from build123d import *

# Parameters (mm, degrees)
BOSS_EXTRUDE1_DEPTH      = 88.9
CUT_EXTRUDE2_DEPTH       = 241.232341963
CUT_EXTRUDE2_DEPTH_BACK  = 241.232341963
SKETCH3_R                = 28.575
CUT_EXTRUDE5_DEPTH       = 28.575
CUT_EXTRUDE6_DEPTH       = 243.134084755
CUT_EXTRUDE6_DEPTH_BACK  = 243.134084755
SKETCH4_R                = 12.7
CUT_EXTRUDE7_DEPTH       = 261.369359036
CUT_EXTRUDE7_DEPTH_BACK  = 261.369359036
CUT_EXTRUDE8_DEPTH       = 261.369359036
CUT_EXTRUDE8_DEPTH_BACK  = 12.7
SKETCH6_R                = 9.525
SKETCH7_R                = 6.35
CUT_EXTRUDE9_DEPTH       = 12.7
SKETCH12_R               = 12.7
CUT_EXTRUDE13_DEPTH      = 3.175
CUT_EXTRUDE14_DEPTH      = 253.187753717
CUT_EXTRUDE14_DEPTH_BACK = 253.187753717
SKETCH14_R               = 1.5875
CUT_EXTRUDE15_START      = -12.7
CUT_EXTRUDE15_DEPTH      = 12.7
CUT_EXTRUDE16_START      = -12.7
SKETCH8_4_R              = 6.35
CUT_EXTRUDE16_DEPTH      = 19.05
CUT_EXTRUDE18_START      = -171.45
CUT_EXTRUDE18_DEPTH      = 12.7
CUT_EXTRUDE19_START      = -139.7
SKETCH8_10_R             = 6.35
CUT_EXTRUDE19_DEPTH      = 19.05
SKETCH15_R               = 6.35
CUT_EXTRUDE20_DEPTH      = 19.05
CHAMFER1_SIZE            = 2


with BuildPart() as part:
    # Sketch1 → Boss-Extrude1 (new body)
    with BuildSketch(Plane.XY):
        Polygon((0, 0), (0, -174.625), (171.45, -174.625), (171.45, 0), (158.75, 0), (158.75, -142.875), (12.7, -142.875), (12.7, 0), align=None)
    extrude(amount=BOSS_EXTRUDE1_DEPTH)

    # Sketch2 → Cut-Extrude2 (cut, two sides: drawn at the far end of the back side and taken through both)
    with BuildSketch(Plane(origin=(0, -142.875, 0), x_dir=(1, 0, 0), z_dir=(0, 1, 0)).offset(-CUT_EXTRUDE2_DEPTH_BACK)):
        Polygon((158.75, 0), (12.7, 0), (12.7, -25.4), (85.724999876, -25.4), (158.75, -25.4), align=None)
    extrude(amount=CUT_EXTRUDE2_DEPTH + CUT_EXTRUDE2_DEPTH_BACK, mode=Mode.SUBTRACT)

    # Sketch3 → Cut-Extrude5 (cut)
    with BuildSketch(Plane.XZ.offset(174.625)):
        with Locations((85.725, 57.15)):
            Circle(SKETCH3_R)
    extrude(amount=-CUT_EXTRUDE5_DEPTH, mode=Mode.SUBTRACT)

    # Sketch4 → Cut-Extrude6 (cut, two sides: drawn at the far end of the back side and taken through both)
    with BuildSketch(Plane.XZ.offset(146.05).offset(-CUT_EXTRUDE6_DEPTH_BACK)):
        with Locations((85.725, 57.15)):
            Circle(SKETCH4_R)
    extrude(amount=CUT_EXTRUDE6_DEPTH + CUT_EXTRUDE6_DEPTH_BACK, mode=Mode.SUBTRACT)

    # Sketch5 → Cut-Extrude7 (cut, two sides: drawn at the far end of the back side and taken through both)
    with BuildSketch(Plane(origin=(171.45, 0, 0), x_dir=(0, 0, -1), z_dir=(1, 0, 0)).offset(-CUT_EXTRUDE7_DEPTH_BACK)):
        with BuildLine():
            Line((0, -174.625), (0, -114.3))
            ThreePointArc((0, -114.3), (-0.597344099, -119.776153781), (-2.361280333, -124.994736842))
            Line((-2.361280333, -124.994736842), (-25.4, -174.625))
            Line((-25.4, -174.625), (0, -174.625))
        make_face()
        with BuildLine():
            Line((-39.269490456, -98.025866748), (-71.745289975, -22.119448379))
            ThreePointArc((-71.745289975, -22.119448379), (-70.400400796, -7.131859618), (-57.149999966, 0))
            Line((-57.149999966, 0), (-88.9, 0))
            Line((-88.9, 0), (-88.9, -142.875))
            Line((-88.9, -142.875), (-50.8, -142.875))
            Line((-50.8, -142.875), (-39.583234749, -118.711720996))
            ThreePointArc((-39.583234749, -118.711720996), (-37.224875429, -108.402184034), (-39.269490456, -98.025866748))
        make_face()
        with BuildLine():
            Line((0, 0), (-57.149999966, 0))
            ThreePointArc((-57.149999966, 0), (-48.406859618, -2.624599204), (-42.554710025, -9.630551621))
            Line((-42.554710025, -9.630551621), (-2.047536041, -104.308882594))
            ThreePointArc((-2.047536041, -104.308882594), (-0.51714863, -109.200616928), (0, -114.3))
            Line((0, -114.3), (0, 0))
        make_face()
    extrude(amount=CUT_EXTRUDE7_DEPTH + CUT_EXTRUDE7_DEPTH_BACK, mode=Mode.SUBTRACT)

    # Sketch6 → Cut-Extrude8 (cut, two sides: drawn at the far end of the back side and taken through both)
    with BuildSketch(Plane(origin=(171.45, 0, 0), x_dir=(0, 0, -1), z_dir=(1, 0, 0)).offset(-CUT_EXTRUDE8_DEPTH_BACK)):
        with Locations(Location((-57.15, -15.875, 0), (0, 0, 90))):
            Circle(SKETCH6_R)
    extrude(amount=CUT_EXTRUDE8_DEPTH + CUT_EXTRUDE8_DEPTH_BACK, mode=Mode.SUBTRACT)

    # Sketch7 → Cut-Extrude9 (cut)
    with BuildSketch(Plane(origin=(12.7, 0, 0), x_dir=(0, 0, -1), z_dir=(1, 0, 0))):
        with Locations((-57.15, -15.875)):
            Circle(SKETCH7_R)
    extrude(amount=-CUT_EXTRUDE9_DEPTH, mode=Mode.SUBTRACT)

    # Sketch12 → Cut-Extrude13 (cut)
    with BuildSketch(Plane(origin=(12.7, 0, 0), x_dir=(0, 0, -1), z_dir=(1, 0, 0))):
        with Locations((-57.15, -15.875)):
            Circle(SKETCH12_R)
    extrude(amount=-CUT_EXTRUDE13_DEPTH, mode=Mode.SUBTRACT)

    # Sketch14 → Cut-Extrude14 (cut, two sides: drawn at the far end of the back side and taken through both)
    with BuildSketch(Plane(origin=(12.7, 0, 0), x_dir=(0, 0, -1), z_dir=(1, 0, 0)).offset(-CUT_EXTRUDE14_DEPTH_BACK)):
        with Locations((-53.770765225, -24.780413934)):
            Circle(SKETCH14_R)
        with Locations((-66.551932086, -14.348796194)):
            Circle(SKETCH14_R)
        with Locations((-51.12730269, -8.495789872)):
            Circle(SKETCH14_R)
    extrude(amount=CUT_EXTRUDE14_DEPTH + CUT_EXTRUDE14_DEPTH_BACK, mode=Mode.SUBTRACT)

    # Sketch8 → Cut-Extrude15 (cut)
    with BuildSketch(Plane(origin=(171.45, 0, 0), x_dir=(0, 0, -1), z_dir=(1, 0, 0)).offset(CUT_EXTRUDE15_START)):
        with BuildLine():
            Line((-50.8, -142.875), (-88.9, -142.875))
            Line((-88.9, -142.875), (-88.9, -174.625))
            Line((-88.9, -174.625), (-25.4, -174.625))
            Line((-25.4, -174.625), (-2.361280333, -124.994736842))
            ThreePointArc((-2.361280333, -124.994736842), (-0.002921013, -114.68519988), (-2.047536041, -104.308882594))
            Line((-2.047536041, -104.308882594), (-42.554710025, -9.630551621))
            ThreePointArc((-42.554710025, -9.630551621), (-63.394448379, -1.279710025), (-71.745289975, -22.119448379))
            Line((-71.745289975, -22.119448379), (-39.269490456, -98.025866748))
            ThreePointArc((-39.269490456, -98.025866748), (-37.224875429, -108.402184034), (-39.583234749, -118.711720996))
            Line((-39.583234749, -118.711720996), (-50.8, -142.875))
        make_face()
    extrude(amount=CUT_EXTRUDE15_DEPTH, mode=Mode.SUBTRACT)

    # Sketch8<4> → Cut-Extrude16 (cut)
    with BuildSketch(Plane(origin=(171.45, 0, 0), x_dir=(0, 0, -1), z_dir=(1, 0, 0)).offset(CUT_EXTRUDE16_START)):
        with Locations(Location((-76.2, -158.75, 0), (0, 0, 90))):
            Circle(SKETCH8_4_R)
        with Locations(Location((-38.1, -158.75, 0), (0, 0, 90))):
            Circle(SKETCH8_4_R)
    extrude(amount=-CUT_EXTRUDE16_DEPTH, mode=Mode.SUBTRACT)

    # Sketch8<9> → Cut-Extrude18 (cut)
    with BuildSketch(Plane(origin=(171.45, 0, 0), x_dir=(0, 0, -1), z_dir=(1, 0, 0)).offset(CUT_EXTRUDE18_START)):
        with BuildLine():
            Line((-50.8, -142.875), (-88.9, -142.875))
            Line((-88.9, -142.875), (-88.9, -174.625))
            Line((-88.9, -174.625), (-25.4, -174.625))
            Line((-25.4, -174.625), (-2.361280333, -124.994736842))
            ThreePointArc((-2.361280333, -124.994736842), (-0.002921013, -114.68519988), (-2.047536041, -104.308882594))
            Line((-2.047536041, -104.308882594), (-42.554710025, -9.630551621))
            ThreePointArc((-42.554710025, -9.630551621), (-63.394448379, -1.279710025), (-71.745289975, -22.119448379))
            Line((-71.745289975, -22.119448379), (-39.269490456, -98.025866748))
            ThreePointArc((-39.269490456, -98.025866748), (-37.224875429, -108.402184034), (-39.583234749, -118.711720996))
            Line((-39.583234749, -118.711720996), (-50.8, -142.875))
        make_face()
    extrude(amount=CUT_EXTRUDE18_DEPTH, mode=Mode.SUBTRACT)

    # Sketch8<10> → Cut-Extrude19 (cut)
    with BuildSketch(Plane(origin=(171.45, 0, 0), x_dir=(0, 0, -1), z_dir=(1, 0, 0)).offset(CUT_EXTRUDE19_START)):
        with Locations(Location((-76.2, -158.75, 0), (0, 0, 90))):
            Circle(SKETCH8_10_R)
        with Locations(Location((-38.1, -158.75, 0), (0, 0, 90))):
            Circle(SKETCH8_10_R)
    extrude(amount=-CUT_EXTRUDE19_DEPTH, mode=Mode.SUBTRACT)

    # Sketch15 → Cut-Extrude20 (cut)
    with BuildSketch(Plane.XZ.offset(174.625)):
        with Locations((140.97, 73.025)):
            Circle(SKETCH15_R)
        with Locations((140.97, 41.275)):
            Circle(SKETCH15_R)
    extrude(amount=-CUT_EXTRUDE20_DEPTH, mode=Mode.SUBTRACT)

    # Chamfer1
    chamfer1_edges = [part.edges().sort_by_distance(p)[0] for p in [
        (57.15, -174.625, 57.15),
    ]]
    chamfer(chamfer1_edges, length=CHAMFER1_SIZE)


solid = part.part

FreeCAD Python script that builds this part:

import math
import FreeCAD as App
import Part
import Sketcher
from FreeCAD import Vector
Q = App.Units.Quantity


def edges_at(feature, points):
    """Names of the edges that pass closest to the given points."""
    edges = feature.Shape.Edges
    near = lambda p: min(range(len(edges)), key=lambda i: edges[i].distToShape(Part.Vertex(*p))[0])
    return sorted({f"Edge{near(p) + 1}" for p in points})

doc = App.newDocument("Part")
body = doc.addObject("PartDesign::Body", "Body")

# Sketch on XY plane
sketch1 = body.newObject("Sketcher::SketchObject", "Sketch")
sketch1.AttachmentSupport = (doc.getObject("XY_Plane"), [""])
sketch1.MapMode = "FlatFace"
sketch1.addGeometry([
    Part.LineSegment(Vector(0, 0, 0), Vector(0, -174.625, 0)),  # 0
    Part.LineSegment(Vector(0, -174.625, 0), Vector(171.45, -174.625, 0)),  # 1
    Part.LineSegment(Vector(171.45, -174.625, 0), Vector(171.45, 0, 0)),  # 2
    Part.LineSegment(Vector(171.45, 0, 0), Vector(158.75, 0, 0)),  # 3
    Part.LineSegment(Vector(158.75, 0, 0), Vector(158.75, -142.875, 0)),  # 4
    Part.LineSegment(Vector(158.75, -142.875, 0), Vector(12.7, -142.875, 0)),  # 5
    Part.LineSegment(Vector(12.7, -142.875, 0), Vector(12.7, 0, 0)),  # 6
    Part.LineSegment(Vector(12.7, 0, 0), Vector(0, 0, 0)),  # 7
], False)
sketch1.addConstraint([
    Sketcher.Constraint("Coincident", 0, 2, 1, 1),
    Sketcher.Constraint("Coincident", 1, 2, 2, 1),
    Sketcher.Constraint("Coincident", 2, 2, 3, 1),
    Sketcher.Constraint("Coincident", 3, 2, 4, 1),
    Sketcher.Constraint("Coincident", 4, 2, 5, 1),
    Sketcher.Constraint("Coincident", 5, 2, 6, 1),
    Sketcher.Constraint("Coincident", 6, 2, 7, 1),
    Sketcher.Constraint("Coincident", 7, 2, 0, 1),
    Sketcher.Constraint("Vertical", 0),
    Sketcher.Constraint("Horizontal", 1),
    Sketcher.Constraint("Vertical", 2),
    Sketcher.Constraint("Horizontal", 3),
    Sketcher.Constraint("Vertical", 4),
    Sketcher.Constraint("Horizontal", 5),
    Sketcher.Constraint("Vertical", 6),
    Sketcher.Constraint("Horizontal", 7),
    Sketcher.Constraint("Coincident", 7, 2, -1, 1),
    Sketcher.Constraint("PointOnObject", 2, 2, -1),
    Sketcher.Constraint("Equal", 3, 7),
    Sketcher.Constraint("DistanceX", 3, 2, 3, 1, Q("0.5 in")),
    Sketcher.Constraint("DistanceX", 1, 1, 1, 2, Q("6.75 in")),
    Sketcher.Constraint("DistanceY", 0, 2, 0, 1, Q("6.875 in")),
    Sketcher.Constraint("DistanceY", 4, 2, 4, 1, Q("5.625 in")),
])
pad1 = body.newObject("PartDesign::Pad", "Pad")
pad1.Profile = sketch1
pad1.Length = Q("3.5 in")

# Sketch on XZ plane
sketch2 = body.newObject("Sketcher::SketchObject", "Sketch001")
sketch2.AttachmentSupport = (doc.getObject("XZ_Plane"), [""])
sketch2.MapMode = "FlatFace"
sketch2.AttachmentOffset = App.Placement(Vector(0, 0, 5.625 * 25.4), App.Rotation())
sketch2.addGeometry([
    Part.LineSegment(Vector(158.75, 0, 0), Vector(12.7, 0, 0)),
    Part.LineSegment(Vector(12.7, 0, 0), Vector(12.7, 25.4, 0)),
    Part.LineSegment(Vector(12.7, 25.4, 0), Vector(158.75, 25.4, 0)),
    Part.LineSegment(Vector(158.75, 25.4, 0), Vector(158.75, 0, 0)),
], False)
sketch2.addConstraint([
    Sketcher.Constraint("Coincident", 0, 2, 1, 1),
    Sketcher.Constraint("Coincident", 1, 2, 2, 1),
    Sketcher.Constraint("Coincident", 2, 2, 3, 1),
    Sketcher.Constraint("Coincident", 3, 2, 0, 1),
    Sketcher.Constraint("Horizontal", 0),
    Sketcher.Constraint("Vertical", 1),
    Sketcher.Constraint("Horizontal", 2),
    Sketcher.Constraint("Vertical", 3),
    Sketcher.Constraint("PointOnObject", 0, 2, -1),
    Sketcher.Constraint("DistanceY", 1, 1, 1, 2, Q("1 in")),
    Sketcher.Constraint("DistanceX", 0, 2, 0, 1, Q("5.75 in")),
    Sketcher.Constraint("DistanceX", -1, 1, 0, 2, Q("0.5 in")),
])
pocket1 = body.newObject("PartDesign::Pocket", "Pocket")
pocket1.Profile = sketch2
pocket1.Type = "ThroughAll"
pocket1.Midplane = True

# Sketch on XZ plane
sketch3 = body.newObject("Sketcher::SketchObject", "Sketch002")
sketch3.AttachmentSupport = (doc.getObject("XZ_Plane"), [""])
sketch3.MapMode = "FlatFace"
sketch3.AttachmentOffset = App.Placement(Vector(0, 0, 6.875 * 25.4), App.Rotation())
sketch3.addGeometry(Part.Circle(Vector(85.725, 57.15, 0), Vector(0, 0, 1), 28.575), False)
sketch3.addConstraint([
    Sketcher.Constraint("Diameter", 0, Q("2.25 in")),
    Sketcher.Constraint("DistanceY", -1, 1, 0, 3, Q("2.25 in")),
    Sketcher.Constraint("DistanceX", -1, 1, 0, 3, Q("3.375 in")),
])
pocket2 = body.newObject("PartDesign::Pocket", "Pocket001")
pocket2.Profile = sketch3
pocket2.Length = Q("1.125 in")

# Sketch on XZ plane
sketch4 = body.newObject("Sketcher::SketchObject", "Sketch003")
sketch4.AttachmentSupport = (doc.getObject("XZ_Plane"), [""])
sketch4.MapMode = "FlatFace"
sketch4.AttachmentOffset = App.Placement(Vector(0, 0, 5.75 * 25.4), App.Rotation())
sketch4.addGeometry(Part.Circle(Vector(85.725, 57.15, 0), Vector(0, 0, 1), 12.7), False)
sketch4.addConstraint([
    Sketcher.Constraint("Diameter", 0, Q("1 in")),
    Sketcher.Constraint("DistanceY", -1, 1, 0, 3, Q("2.25 in")),
    Sketcher.Constraint("DistanceX", -1, 1, 0, 3, Q("3.375 in")),
])
pocket3 = body.newObject("PartDesign::Pocket", "Pocket002")
pocket3.Profile = sketch4
pocket3.Type = "ThroughAll"
pocket3.Midplane = True

# Sketch on YZ plane
sketch5 = body.newObject("Sketcher::SketchObject", "Sketch004")
sketch5.AttachmentSupport = (doc.getObject("YZ_Plane"), [""])
sketch5.MapMode = "FlatFace"
sketch5.AttachmentOffset = App.Placement(Vector(0, 0, 6.75 * 25.4), App.Rotation())
sketch5.addGeometry([
    Part.LineSegment(Vector(-174.625, 0, 0), Vector(-114.3, 0, 0)),  # 0
    Part.ArcOfCircle(Part.Circle(Vector(-114.3, 25.4, 0), Vector(0, 0, 1), 25.4), math.radians(-114.901062), math.radians(-90)),  # 1
    Part.LineSegment(Vector(-124.994737, 2.36128, 0), Vector(-174.625, 25.4, 0)),  # 2
    Part.LineSegment(Vector(-174.625, 25.4, 0), Vector(-174.625, 0, 0)),  # 3
    Part.LineSegment(Vector(-98.025867, 39.26949, 0), Vector(-22.119448, 71.74529, 0)),  # 4
    Part.ArcOfCircle(Part.Circle(Vector(-15.875, 57.15, 0), Vector(0, 0, 1), 15.875), math.radians(0), math.radians(113.163175)),  # 5
    Part.LineSegment(Vector(0, 57.15, 0), Vector(0, 88.9, 0)),  # 6
    Part.LineSegment(Vector(0, 88.9, 0), Vector(-142.875, 88.9, 0)),  # 7
    Part.LineSegment(Vector(-142.875, 88.9, 0), Vector(-142.875, 50.8, 0)),  # 8
    Part.LineSegment(Vector(-142.875, 50.8, 0), Vector(-118.711721, 39.583235, 0)),  # 9
    Part.ArcOfCircle(Part.Circle(Vector(-108.016984, 62.621954, 0), Vector(0, 0, 1), 25.4), math.radians(-114.901062), math.radians(-66.836825)),  # 10
    Part.LineSegment(Vector(0, 0, 0), Vector(0, 57.15, 0)),  # 11
    Part.ArcOfCircle(Part.Circle(Vector(-15.875, 57.15, 0), Vector(0, 0, 1), 15.875), math.radians(-66.836825), math.radians(0)),  # 12
    Part.LineSegment(Vector(-9.630552, 42.55471, 0), Vector(-104.308883, 2.047536, 0)),  # 13
    Part.ArcOfCircle(Part.Circle(Vector(-114.3, 25.4, 0), Vector(0, 0, 1), 25.4), math.radians(-90), math.radians(-66.836825)),  # 14
    Part.LineSegment(Vector(-114.3, 0, 0), Vector(0, 0, 0)),  # 15
], False)
sketch5.addConstraint([
    Sketcher.Constraint("Tangent", 0, 2, 1, 2),
    Sketcher.Constraint("Tangent", 1, 1, 2, 1),
    Sketcher.Constraint("Coincident", 2, 2, 3, 1),
    Sketcher.Constraint("Coincident", 3, 2, 0, 1),
    Sketcher.Constraint("Tangent", 4, 2, 5, 2),
    Sketcher.Constraint("Tangent", 5, 1, 6, 1),
    Sketcher.Constraint("Coincident", 6, 2, 7, 1),
    Sketcher.Constraint("Coincident", 7, 2, 8, 1),
    Sketcher.Constraint("Coincident", 8, 2, 9, 1),
    Sketcher.Constraint("Tangent", 9, 2, 10, 1),
    Sketcher.Constraint("Tangent", 10, 2, 4, 1),
    Sketcher.Constraint("Tangent", 11, 2, 12, 2),
    Sketcher.Constraint("Tangent", 12, 1, 13, 1),
    Sketcher.Constraint("Tangent", 13, 2, 14, 2),
    Sketcher.Constraint("Tangent", 14, 1, 15, 1),
    Sketcher.Constraint("Coincident", 15, 2, 11, 1),
    Sketcher.Constraint("Horizontal", 0),
    Sketcher.Constraint("Vertical", 3),
    Sketcher.Constraint("Vertical", 6),
    Sketcher.Constraint("Horizontal", 7),
    Sketcher.Constraint("Vertical", 8),
    Sketcher.Constraint("Vertical", 11),
    Sketcher.Constraint("Horizontal", 15),
    Sketcher.Constraint("Coincident", 15, 2, -1, 1),
    Sketcher.Constraint("Coincident", 12, 3, 5, 3),
    Sketcher.Constraint("Coincident", 14, 3, 1, 3),
    Sketcher.Constraint("Equal", 1, 10),
    Sketcher.Constraint("Equal", 5, 12),
    Sketcher.Constraint("Equal", 10, 14),
    Sketcher.Constraint("Parallel", 2, 9),
    Sketcher.Constraint("Parallel", 4, 13),
    Sketcher.Constraint("Horizontal", 14, 3, 2, 2),
    Sketcher.Constraint("Radius", 1, Q("1 in")),
    Sketcher.Constraint("DistanceX", 15, 1, 15, 2, Q("4.5 in")),
    Sketcher.Constraint("DistanceY", 8, 2, 8, 1, Q("1.5 in")),
    Sketcher.Constraint("DistanceY", -1, 1, 8, 2, Q("2 in")),
    Sketcher.Constraint("Radius", 5, Q("0.625 in")),
    Sketcher.Constraint("DistanceY", 6, 1, 6, 2, Q("1.25 in")),
    Sketcher.Constraint("DistanceX", 0, 1, 0, 2, Q("2.375 in")),
    Sketcher.Constraint("DistanceX", 7, 2, 7, 1, Q("5.625 in")),
])
pocket4 = body.newObject("PartDesign::Pocket", "Pocket003")
pocket4.Profile = sketch5
pocket4.Type = "ThroughAll"
pocket4.Midplane = True

# Sketch on YZ plane
sketch6 = body.newObject("Sketcher::SketchObject", "Sketch005")
sketch6.AttachmentSupport = (doc.getObject("YZ_Plane"), [""])
sketch6.MapMode = "FlatFace"
sketch6.AttachmentOffset = App.Placement(Vector(0, 0, 6.75 * 25.4), App.Rotation())
sketch6.addGeometry(Part.Circle(Vector(-15.875, 57.15, 0), Vector(0, 0, 1), 9.525), False)
sketch6.addConstraint([
    Sketcher.Constraint("Diameter", 0, Q("0.75 in")),
    Sketcher.Constraint("DistanceY", -1, 1, 0, 3, Q("2.25 in")),
    Sketcher.Constraint("DistanceX", 0, 3, -1, 1, Q("0.625 in")),
])
pocket5 = body.newObject("PartDesign::Pocket", "Pocket004")
pocket5.Profile = sketch6
pocket5.Type = "TwoLengths"
pocket5.Length = 261.369359
pocket5.Length2 = Q("0.5 in")
pocket5.Reversed = True

# Sketch on YZ plane
sketch7 = body.newObject("Sketcher::SketchObject", "Sketch006")
sketch7.AttachmentSupport = (doc.getObject("YZ_Plane"), [""])
sketch7.MapMode = "FlatFace"
sketch7.AttachmentOffset = App.Placement(Vector(0, 0, 0.5 * 25.4), App.Rotation())
sketch7.addGeometry(Part.Circle(Vector(-15.875, 57.15, 0), Vector(0, 0, 1), 6.35), False)
sketch7.addConstraint([
    Sketcher.Constraint("Diameter", 0, Q("0.5 in")),
    Sketcher.Constraint("DistanceY", -1, 1, 0, 3, Q("2.25 in")),
    Sketcher.Constraint("DistanceX", 0, 3, -1, 1, Q("0.625 in")),
])
pocket6 = body.newObject("PartDesign::Pocket", "Pocket005")
pocket6.Profile = sketch7
pocket6.Length = Q("0.5 in")

# Sketch on YZ plane
sketch8 = body.newObject("Sketcher::SketchObject", "Sketch007")
sketch8.AttachmentSupport = (doc.getObject("YZ_Plane"), [""])
sketch8.MapMode = "FlatFace"
sketch8.AttachmentOffset = App.Placement(Vector(0, 0, 0.5 * 25.4), App.Rotation())
sketch8.addGeometry(Part.Circle(Vector(-15.875, 57.15, 0), Vector(0, 0, 1), 12.7), False)
sketch8.addConstraint([
    Sketcher.Constraint("Diameter", 0, Q("1 in")),
    Sketcher.Constraint("DistanceY", -1, 1, 0, 3, Q("2.25 in")),
    Sketcher.Constraint("DistanceX", 0, 3, -1, 1, Q("0.625 in")),
])
pocket7 = body.newObject("PartDesign::Pocket", "Pocket006")
pocket7.Profile = sketch8
pocket7.Length = Q("0.125 in")

# Sketch on YZ plane
sketch9 = body.newObject("Sketcher::SketchObject", "Sketch008")
sketch9.AttachmentSupport = (doc.getObject("YZ_Plane"), [""])
sketch9.MapMode = "FlatFace"
sketch9.AttachmentOffset = App.Placement(Vector(0, 0, 0.5 * 25.4), App.Rotation())
sketch9.addGeometry([
    Part.Circle(Vector(-24.780414, 53.770765, 0), Vector(0, 0, 1), 1.5875),
    Part.Circle(Vector(-14.348796, 66.551932, 0), Vector(0, 0, 1), 1.5875),
    Part.Circle(Vector(-8.49579, 51.127303, 0), Vector(0, 0, 1), 1.5875),
], False)
sketch9.addConstraint([
    Sketcher.Constraint("Equal", 0, 1),
    Sketcher.Constraint("Equal", 1, 2),
    Sketcher.Constraint("Diameter", 0, Q("0.125 in")),
    Sketcher.Constraint("DistanceX", 2, 3, -1, 1, 8.49579),
    Sketcher.Constraint("DistanceY", 2, 3, 1, 3, 15.424629),
    Sketcher.Constraint("DistanceX", 0, 3, -1, 1, 24.780414),
    Sketcher.Constraint("DistanceY", -1, 1, 0, 3, 53.770765),
    Sketcher.Constraint("DistanceX", 1, 3, -1, 1, 14.348796),
    Sketcher.Constraint("DistanceY", -1, 1, 1, 3, 66.551932),
])
pocket8 = body.newObject("PartDesign::Pocket", "Pocket007")
pocket8.Profile = sketch9
pocket8.Type = "ThroughAll"
pocket8.Midplane = True

# Sketch on YZ plane
sketch10 = body.newObject("Sketcher::SketchObject", "Sketch009")
sketch10.AttachmentSupport = (doc.getObject("YZ_Plane"), [""])
sketch10.MapMode = "FlatFace"
sketch10.AttachmentOffset = App.Placement(Vector(0, 0, 6.25 * 25.4), App.Rotation())
sketch10.addGeometry([
    Part.LineSegment(Vector(-142.875, 50.8, 0), Vector(-142.875, 88.9, 0)),  # 0
    Part.LineSegment(Vector(-142.875, 88.9, 0), Vector(-174.625, 88.9, 0)),  # 1
    Part.LineSegment(Vector(-174.625, 88.9, 0), Vector(-174.625, 25.4, 0)),  # 2
    Part.LineSegment(Vector(-174.625, 25.4, 0), Vector(-124.994737, 2.36128, 0)),  # 3
    Part.ArcOfCircle(Part.Circle(Vector(-114.3, 25.4, 0), Vector(0, 0, 1), 25.4), math.radians(-114.901062), math.radians(-66.836825)),  # 4
    Part.LineSegment(Vector(-104.308883, 2.047536, 0), Vector(-9.630552, 42.55471, 0)),  # 5
    Part.ArcOfCircle(Part.Circle(Vector(-15.875, 57.15, 0), Vector(0, 0, 1), 15.875), math.radians(-66.836825), math.radians(113.163175)),  # 6
    Part.LineSegment(Vector(-22.119448, 71.74529, 0), Vector(-98.025867, 39.26949, 0)),  # 7
    Part.ArcOfCircle(Part.Circle(Vector(-108.016984, 62.621954, 0), Vector(0, 0, 1), 25.4), math.radians(-114.901062), math.radians(-66.836825)),  # 8
    Part.LineSegment(Vector(-118.711721, 39.583235, 0), Vector(-142.875, 50.8, 0)),  # 9
], False)
sketch10.addConstraint([
    Sketcher.Constraint("Coincident", 0, 2, 1, 1),
    Sketcher.Constraint("Coincident", 1, 2, 2, 1),
    Sketcher.Constraint("Coincident", 2, 2, 3, 1),
    Sketcher.Constraint("Tangent", 3, 2, 4, 1),
    Sketcher.Constraint("Tangent", 4, 2, 5, 1),
    Sketcher.Constraint("Tangent", 5, 2, 6, 1),
    Sketcher.Constraint("Tangent", 6, 2, 7, 1),
    Sketcher.Constraint("Tangent", 7, 2, 8, 2),
    Sketcher.Constraint("Tangent", 8, 1, 9, 1),
    Sketcher.Constraint("Coincident", 9, 2, 0, 1),
    Sketcher.Constraint("Vertical", 0),
    Sketcher.Constraint("Horizontal", 1),
    Sketcher.Constraint("Vertical", 2),
    Sketcher.Constraint("Equal", 4, 8),
    Sketcher.Constraint("Parallel", 5, 7),
    Sketcher.Constraint("Parallel", 3, 9),
    Sketcher.Constraint("Horizontal", 4, 3, 2, 2),
    Sketcher.Constraint("Radius", 4, Q("1 in")),
    Sketcher.Constraint("DistanceY", 0, 1, 0, 2, Q("1.5 in")),
    Sketcher.Constraint("DistanceY", 2, 2, 2, 1, Q("2.5 in")),
    Sketcher.Constraint("DistanceY", -1, 1, 4, 3, Q("1 in")),
    Sketcher.Constraint("Radius", 6, Q("0.625 in")),
    Sketcher.Constraint("DistanceX", 0, 2, 6, 3, Q("5 in")),
    Sketcher.Constraint("DistanceX", 1, 2, 1, 1, Q("1.25 in")),
    Sketcher.Constraint("DistanceX", 4, 3, -1, 1, Q("4.5 in")),
    Sketcher.Constraint("DistanceY", -1, 1, 6, 3, Q("2.25 in")),
    Sketcher.Constraint("DistanceX", 6, 3, -1, 1, Q("0.625 in")),
])
pocket9 = body.newObject("PartDesign::Pocket", "Pocket008")
pocket9.Profile = sketch10
pocket9.Length = Q("0.5 in")
pocket9.Reversed = True

# Sketch on YZ plane
sketch11 = body.newObject("Sketcher::SketchObject", "Sketch010")
sketch11.AttachmentSupport = (doc.getObject("YZ_Plane"), [""])
sketch11.MapMode = "FlatFace"
sketch11.AttachmentOffset = App.Placement(Vector(0, 0, 6.25 * 25.4), App.Rotation())
sketch11.addGeometry([
    Part.Circle(Vector(-158.75, 76.2, 0), Vector(0, 0, 1), 6.35),
    Part.Circle(Vector(-158.75, 38.1, 0), Vector(0, 0, 1), 6.35),
], False)
sketch11.addConstraint([
    Sketcher.Constraint("Equal", 0, 1),
    Sketcher.Constraint("Vertical", 0, 3, 1, 3),
    Sketcher.Constraint("Diameter", 0, Q("0.5 in")),
    Sketcher.Constraint("DistanceY", -1, 1, 0, 3, Q("3 in")),
    Sketcher.Constraint("DistanceY", -1, 1, 1, 3, Q("1.5 in")),
    Sketcher.Constraint("DistanceX", 0, 3, -1, 1, Q("6.25 in")),
])
pocket10 = body.newObject("PartDesign::Pocket", "Pocket009")
pocket10.Profile = sketch11
pocket10.Length = Q("0.75 in")

# Sketch on YZ plane
sketch12 = body.newObject("Sketcher::SketchObject", "Sketch011")
sketch12.AttachmentSupport = (doc.getObject("YZ_Plane"), [""])
sketch12.MapMode = "FlatFace"
sketch12.addGeometry([
    Part.LineSegment(Vector(-142.875, 50.8, 0), Vector(-142.875, 88.9, 0)),  # 0
    Part.LineSegment(Vector(-142.875, 88.9, 0), Vector(-174.625, 88.9, 0)),  # 1
    Part.LineSegment(Vector(-174.625, 88.9, 0), Vector(-174.625, 25.4, 0)),  # 2
    Part.LineSegment(Vector(-174.625, 25.4, 0), Vector(-124.994737, 2.36128, 0)),  # 3
    Part.ArcOfCircle(Part.Circle(Vector(-114.3, 25.4, 0), Vector(0, 0, 1), 25.4), math.radians(-114.901062), math.radians(-66.836825)),  # 4
    Part.LineSegment(Vector(-104.308883, 2.047536, 0), Vector(-9.630552, 42.55471, 0)),  # 5
    Part.ArcOfCircle(Part.Circle(Vector(-15.875, 57.15, 0), Vector(0, 0, 1), 15.875), math.radians(-66.836825), math.radians(113.163175)),  # 6
    Part.LineSegment(Vector(-22.119448, 71.74529, 0), Vector(-98.025867, 39.26949, 0)),  # 7
    Part.ArcOfCircle(Part.Circle(Vector(-108.016984, 62.621954, 0), Vector(0, 0, 1), 25.4), math.radians(-114.901062), math.radians(-66.836825)),  # 8
    Part.LineSegment(Vector(-118.711721, 39.583235, 0), Vector(-142.875, 50.8, 0)),  # 9
], False)
sketch12.addConstraint([
    Sketcher.Constraint("Coincident", 0, 2, 1, 1),
    Sketcher.Constraint("Coincident", 1, 2, 2, 1),
    Sketcher.Constraint("Coincident", 2, 2, 3, 1),
    Sketcher.Constraint("Tangent", 3, 2, 4, 1),
    Sketcher.Constraint("Tangent", 4, 2, 5, 1),
    Sketcher.Constraint("Tangent", 5, 2, 6, 1),
    Sketcher.Constraint("Tangent", 6, 2, 7, 1),
    Sketcher.Constraint("Tangent", 7, 2, 8, 2),
    Sketcher.Constraint("Tangent", 8, 1, 9, 1),
    Sketcher.Constraint("Coincident", 9, 2, 0, 1),
    Sketcher.Constraint("Vertical", 0),
    Sketcher.Constraint("Horizontal", 1),
    Sketcher.Constraint("Vertical", 2),
    Sketcher.Constraint("Equal", 4, 8),
    Sketcher.Constraint("Parallel", 5, 7),
    Sketcher.Constraint("Parallel", 3, 9),
    Sketcher.Constraint("Horizontal", 4, 3, 2, 2),
    Sketcher.Constraint("Radius", 4, Q("1 in")),
    Sketcher.Constraint("DistanceY", 0, 1, 0, 2, Q("1.5 in")),
    Sketcher.Constraint("DistanceY", 2, 2, 2, 1, Q("2.5 in")),
    Sketcher.Constraint("DistanceY", -1, 1, 4, 3, Q("1 in")),
    Sketcher.Constraint("Radius", 6, Q("0.625 in")),
    Sketcher.Constraint("DistanceX", 0, 2, 6, 3, Q("5 in")),
    Sketcher.Constraint("DistanceX", 1, 2, 1, 1, Q("1.25 in")),
    Sketcher.Constraint("DistanceX", 4, 3, -1, 1, Q("4.5 in")),
    Sketcher.Constraint("DistanceY", -1, 1, 6, 3, Q("2.25 in")),
    Sketcher.Constraint("DistanceX", 6, 3, -1, 1, Q("0.625 in")),
])
pocket11 = body.newObject("PartDesign::Pocket", "Pocket010")
pocket11.Profile = sketch12
pocket11.Length = Q("0.5 in")
pocket11.Reversed = True

# Sketch on YZ plane
sketch13 = body.newObject("Sketcher::SketchObject", "Sketch012")
sketch13.AttachmentSupport = (doc.getObject("YZ_Plane"), [""])
sketch13.MapMode = "FlatFace"
sketch13.AttachmentOffset = App.Placement(Vector(0, 0, 1.25 * 25.4), App.Rotation())
sketch13.addGeometry([
    Part.Circle(Vector(-158.75, 76.2, 0), Vector(0, 0, 1), 6.35),
    Part.Circle(Vector(-158.75, 38.1, 0), Vector(0, 0, 1), 6.35),
], False)
sketch13.addConstraint([
    Sketcher.Constraint("Equal", 0, 1),
    Sketcher.Constraint("Vertical", 0, 3, 1, 3),
    Sketcher.Constraint("Diameter", 0, Q("0.5 in")),
    Sketcher.Constraint("DistanceY", -1, 1, 0, 3, Q("3 in")),
    Sketcher.Constraint("DistanceY", -1, 1, 1, 3, Q("1.5 in")),
    Sketcher.Constraint("DistanceX", 0, 3, -1, 1, Q("6.25 in")),
])
pocket12 = body.newObject("PartDesign::Pocket", "Pocket011")
pocket12.Profile = sketch13
pocket12.Length = Q("0.75 in")

# Sketch on XZ plane
sketch14 = body.newObject("Sketcher::SketchObject", "Sketch013")
sketch14.AttachmentSupport = (doc.getObject("XZ_Plane"), [""])
sketch14.MapMode = "FlatFace"
sketch14.AttachmentOffset = App.Placement(Vector(0, 0, 6.875 * 25.4), App.Rotation())
sketch14.addGeometry([
    Part.Circle(Vector(140.97, 73.025, 0), Vector(0, 0, 1), 6.35),
    Part.Circle(Vector(140.97, 41.275, 0), Vector(0, 0, 1), 6.35),
], False)
sketch14.addConstraint([
    Sketcher.Constraint("Equal", 0, 1),
    Sketcher.Constraint("Vertical", 0, 3, 1, 3),
    Sketcher.Constraint("Diameter", 0, Q("0.5 in")),
    Sketcher.Constraint("DistanceX", -1, 1, 0, 3, Q("5.55 in")),
    Sketcher.Constraint("DistanceY", 1, 3, 0, 3, Q("1.25 in")),
    Sketcher.Constraint("DistanceY", -1, 1, 0, 3, Q("2.875 in")),
])
pocket13 = body.newObject("PartDesign::Pocket", "Pocket012")
pocket13.Profile = sketch14
pocket13.Length = Q("0.75 in")
doc.recompute()

chamfer = body.newObject("PartDesign::Chamfer", "Chamfer")
chamfer.Base = (pocket13, edges_at(pocket13, [(57.15, -174.625, 57.15)]))
chamfer.Size = 2

doc.recompute()
